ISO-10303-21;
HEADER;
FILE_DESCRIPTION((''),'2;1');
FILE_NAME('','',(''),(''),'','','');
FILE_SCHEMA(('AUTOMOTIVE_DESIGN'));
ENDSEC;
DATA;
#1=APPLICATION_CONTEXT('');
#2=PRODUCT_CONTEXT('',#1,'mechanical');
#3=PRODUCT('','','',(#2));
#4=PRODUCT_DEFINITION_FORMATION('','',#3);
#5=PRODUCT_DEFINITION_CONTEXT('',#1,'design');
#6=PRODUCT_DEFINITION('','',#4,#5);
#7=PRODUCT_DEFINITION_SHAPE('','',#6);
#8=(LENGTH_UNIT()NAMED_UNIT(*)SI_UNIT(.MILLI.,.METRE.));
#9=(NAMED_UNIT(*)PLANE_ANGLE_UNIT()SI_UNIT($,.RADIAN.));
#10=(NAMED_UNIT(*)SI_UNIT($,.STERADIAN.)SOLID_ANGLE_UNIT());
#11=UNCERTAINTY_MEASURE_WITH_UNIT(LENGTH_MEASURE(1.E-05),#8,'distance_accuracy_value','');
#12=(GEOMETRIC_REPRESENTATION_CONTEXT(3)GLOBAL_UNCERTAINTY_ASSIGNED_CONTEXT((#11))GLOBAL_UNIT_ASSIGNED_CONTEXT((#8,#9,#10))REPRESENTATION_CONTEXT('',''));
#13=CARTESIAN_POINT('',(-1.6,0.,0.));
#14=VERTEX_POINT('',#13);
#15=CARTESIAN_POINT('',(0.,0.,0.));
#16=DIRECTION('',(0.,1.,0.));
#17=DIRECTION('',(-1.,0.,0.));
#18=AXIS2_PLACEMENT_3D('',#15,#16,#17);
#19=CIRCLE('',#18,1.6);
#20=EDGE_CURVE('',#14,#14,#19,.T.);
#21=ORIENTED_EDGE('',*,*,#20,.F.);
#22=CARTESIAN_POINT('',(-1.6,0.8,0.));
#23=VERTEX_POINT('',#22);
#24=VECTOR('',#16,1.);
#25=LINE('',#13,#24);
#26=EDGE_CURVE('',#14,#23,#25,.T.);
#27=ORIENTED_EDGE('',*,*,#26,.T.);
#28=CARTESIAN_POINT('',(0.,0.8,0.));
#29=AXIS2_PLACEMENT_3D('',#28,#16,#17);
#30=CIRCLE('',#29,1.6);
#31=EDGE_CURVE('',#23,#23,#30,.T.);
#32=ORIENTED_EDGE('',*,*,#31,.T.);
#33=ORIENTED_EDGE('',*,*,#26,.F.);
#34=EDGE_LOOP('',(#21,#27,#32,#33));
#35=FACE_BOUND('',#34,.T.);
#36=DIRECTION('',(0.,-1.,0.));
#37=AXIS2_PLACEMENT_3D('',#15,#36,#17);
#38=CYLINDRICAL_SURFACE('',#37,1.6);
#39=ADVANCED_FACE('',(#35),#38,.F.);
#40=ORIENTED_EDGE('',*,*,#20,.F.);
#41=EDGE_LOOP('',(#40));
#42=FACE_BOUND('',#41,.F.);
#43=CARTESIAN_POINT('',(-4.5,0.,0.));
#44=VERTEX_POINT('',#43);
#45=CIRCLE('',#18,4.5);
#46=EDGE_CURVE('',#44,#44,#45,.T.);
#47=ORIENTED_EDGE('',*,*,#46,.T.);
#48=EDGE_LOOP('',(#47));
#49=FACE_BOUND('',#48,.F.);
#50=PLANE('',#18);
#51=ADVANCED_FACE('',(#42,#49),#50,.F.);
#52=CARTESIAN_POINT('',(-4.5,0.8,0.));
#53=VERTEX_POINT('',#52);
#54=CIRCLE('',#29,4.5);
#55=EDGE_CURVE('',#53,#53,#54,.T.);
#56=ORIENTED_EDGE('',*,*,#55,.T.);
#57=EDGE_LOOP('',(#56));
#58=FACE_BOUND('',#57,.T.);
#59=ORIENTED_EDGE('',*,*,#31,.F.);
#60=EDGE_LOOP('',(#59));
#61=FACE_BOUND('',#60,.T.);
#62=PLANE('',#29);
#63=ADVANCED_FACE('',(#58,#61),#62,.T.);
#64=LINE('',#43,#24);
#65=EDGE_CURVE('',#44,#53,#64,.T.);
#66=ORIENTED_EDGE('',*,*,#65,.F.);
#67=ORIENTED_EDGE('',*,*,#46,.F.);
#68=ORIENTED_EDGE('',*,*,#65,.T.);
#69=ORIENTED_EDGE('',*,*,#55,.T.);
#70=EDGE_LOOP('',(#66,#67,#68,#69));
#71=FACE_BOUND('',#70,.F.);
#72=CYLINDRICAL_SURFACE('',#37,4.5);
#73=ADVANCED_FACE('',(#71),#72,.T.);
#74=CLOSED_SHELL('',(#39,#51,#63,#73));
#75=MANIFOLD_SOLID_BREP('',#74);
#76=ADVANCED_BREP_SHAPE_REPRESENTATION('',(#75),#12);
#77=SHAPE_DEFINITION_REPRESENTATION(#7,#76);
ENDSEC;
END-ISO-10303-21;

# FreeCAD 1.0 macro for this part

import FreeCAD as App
import Part
import Sketcher
Q = App.Units.Quantity

doc = App.newDocument("Part")
body = doc.addObject("PartDesign::Body", "Body")

# Sketch on XZ plane
sketch1 = doc.addObject("Sketcher::SketchObject", "Sketch")
body.addObject(sketch1)
sketch1.AttachmentSupport = (doc.XZ_Plane, [""])
sketch1.MapMode = "FlatFace"
sketch1.addGeometry([
    Part.Circle(App.Vector(0, 0, 0), App.Vector(0, 0, 1), 4.5),
    Part.Circle(App.Vector(0, 0, 0), App.Vector(0, 0, 1), 1.6),
], False)
sketch1.addConstraint([
    Sketcher.Constraint("Coincident", 0, 3, -1, 1),
    Sketcher.Constraint("Coincident", 1, 3, -1, 1),
    Sketcher.Constraint("Diameter", 0, Q("9 mm")),
    Sketcher.Constraint("Diameter", 1, Q("3.2 mm")),
])
pad1 = doc.addObject("PartDesign::Pad", "Pad")
body.addObject(pad1)
pad1.Profile = sketch1
pad1.Length = 0.8
pad1.Reversed = True

doc.recompute()
